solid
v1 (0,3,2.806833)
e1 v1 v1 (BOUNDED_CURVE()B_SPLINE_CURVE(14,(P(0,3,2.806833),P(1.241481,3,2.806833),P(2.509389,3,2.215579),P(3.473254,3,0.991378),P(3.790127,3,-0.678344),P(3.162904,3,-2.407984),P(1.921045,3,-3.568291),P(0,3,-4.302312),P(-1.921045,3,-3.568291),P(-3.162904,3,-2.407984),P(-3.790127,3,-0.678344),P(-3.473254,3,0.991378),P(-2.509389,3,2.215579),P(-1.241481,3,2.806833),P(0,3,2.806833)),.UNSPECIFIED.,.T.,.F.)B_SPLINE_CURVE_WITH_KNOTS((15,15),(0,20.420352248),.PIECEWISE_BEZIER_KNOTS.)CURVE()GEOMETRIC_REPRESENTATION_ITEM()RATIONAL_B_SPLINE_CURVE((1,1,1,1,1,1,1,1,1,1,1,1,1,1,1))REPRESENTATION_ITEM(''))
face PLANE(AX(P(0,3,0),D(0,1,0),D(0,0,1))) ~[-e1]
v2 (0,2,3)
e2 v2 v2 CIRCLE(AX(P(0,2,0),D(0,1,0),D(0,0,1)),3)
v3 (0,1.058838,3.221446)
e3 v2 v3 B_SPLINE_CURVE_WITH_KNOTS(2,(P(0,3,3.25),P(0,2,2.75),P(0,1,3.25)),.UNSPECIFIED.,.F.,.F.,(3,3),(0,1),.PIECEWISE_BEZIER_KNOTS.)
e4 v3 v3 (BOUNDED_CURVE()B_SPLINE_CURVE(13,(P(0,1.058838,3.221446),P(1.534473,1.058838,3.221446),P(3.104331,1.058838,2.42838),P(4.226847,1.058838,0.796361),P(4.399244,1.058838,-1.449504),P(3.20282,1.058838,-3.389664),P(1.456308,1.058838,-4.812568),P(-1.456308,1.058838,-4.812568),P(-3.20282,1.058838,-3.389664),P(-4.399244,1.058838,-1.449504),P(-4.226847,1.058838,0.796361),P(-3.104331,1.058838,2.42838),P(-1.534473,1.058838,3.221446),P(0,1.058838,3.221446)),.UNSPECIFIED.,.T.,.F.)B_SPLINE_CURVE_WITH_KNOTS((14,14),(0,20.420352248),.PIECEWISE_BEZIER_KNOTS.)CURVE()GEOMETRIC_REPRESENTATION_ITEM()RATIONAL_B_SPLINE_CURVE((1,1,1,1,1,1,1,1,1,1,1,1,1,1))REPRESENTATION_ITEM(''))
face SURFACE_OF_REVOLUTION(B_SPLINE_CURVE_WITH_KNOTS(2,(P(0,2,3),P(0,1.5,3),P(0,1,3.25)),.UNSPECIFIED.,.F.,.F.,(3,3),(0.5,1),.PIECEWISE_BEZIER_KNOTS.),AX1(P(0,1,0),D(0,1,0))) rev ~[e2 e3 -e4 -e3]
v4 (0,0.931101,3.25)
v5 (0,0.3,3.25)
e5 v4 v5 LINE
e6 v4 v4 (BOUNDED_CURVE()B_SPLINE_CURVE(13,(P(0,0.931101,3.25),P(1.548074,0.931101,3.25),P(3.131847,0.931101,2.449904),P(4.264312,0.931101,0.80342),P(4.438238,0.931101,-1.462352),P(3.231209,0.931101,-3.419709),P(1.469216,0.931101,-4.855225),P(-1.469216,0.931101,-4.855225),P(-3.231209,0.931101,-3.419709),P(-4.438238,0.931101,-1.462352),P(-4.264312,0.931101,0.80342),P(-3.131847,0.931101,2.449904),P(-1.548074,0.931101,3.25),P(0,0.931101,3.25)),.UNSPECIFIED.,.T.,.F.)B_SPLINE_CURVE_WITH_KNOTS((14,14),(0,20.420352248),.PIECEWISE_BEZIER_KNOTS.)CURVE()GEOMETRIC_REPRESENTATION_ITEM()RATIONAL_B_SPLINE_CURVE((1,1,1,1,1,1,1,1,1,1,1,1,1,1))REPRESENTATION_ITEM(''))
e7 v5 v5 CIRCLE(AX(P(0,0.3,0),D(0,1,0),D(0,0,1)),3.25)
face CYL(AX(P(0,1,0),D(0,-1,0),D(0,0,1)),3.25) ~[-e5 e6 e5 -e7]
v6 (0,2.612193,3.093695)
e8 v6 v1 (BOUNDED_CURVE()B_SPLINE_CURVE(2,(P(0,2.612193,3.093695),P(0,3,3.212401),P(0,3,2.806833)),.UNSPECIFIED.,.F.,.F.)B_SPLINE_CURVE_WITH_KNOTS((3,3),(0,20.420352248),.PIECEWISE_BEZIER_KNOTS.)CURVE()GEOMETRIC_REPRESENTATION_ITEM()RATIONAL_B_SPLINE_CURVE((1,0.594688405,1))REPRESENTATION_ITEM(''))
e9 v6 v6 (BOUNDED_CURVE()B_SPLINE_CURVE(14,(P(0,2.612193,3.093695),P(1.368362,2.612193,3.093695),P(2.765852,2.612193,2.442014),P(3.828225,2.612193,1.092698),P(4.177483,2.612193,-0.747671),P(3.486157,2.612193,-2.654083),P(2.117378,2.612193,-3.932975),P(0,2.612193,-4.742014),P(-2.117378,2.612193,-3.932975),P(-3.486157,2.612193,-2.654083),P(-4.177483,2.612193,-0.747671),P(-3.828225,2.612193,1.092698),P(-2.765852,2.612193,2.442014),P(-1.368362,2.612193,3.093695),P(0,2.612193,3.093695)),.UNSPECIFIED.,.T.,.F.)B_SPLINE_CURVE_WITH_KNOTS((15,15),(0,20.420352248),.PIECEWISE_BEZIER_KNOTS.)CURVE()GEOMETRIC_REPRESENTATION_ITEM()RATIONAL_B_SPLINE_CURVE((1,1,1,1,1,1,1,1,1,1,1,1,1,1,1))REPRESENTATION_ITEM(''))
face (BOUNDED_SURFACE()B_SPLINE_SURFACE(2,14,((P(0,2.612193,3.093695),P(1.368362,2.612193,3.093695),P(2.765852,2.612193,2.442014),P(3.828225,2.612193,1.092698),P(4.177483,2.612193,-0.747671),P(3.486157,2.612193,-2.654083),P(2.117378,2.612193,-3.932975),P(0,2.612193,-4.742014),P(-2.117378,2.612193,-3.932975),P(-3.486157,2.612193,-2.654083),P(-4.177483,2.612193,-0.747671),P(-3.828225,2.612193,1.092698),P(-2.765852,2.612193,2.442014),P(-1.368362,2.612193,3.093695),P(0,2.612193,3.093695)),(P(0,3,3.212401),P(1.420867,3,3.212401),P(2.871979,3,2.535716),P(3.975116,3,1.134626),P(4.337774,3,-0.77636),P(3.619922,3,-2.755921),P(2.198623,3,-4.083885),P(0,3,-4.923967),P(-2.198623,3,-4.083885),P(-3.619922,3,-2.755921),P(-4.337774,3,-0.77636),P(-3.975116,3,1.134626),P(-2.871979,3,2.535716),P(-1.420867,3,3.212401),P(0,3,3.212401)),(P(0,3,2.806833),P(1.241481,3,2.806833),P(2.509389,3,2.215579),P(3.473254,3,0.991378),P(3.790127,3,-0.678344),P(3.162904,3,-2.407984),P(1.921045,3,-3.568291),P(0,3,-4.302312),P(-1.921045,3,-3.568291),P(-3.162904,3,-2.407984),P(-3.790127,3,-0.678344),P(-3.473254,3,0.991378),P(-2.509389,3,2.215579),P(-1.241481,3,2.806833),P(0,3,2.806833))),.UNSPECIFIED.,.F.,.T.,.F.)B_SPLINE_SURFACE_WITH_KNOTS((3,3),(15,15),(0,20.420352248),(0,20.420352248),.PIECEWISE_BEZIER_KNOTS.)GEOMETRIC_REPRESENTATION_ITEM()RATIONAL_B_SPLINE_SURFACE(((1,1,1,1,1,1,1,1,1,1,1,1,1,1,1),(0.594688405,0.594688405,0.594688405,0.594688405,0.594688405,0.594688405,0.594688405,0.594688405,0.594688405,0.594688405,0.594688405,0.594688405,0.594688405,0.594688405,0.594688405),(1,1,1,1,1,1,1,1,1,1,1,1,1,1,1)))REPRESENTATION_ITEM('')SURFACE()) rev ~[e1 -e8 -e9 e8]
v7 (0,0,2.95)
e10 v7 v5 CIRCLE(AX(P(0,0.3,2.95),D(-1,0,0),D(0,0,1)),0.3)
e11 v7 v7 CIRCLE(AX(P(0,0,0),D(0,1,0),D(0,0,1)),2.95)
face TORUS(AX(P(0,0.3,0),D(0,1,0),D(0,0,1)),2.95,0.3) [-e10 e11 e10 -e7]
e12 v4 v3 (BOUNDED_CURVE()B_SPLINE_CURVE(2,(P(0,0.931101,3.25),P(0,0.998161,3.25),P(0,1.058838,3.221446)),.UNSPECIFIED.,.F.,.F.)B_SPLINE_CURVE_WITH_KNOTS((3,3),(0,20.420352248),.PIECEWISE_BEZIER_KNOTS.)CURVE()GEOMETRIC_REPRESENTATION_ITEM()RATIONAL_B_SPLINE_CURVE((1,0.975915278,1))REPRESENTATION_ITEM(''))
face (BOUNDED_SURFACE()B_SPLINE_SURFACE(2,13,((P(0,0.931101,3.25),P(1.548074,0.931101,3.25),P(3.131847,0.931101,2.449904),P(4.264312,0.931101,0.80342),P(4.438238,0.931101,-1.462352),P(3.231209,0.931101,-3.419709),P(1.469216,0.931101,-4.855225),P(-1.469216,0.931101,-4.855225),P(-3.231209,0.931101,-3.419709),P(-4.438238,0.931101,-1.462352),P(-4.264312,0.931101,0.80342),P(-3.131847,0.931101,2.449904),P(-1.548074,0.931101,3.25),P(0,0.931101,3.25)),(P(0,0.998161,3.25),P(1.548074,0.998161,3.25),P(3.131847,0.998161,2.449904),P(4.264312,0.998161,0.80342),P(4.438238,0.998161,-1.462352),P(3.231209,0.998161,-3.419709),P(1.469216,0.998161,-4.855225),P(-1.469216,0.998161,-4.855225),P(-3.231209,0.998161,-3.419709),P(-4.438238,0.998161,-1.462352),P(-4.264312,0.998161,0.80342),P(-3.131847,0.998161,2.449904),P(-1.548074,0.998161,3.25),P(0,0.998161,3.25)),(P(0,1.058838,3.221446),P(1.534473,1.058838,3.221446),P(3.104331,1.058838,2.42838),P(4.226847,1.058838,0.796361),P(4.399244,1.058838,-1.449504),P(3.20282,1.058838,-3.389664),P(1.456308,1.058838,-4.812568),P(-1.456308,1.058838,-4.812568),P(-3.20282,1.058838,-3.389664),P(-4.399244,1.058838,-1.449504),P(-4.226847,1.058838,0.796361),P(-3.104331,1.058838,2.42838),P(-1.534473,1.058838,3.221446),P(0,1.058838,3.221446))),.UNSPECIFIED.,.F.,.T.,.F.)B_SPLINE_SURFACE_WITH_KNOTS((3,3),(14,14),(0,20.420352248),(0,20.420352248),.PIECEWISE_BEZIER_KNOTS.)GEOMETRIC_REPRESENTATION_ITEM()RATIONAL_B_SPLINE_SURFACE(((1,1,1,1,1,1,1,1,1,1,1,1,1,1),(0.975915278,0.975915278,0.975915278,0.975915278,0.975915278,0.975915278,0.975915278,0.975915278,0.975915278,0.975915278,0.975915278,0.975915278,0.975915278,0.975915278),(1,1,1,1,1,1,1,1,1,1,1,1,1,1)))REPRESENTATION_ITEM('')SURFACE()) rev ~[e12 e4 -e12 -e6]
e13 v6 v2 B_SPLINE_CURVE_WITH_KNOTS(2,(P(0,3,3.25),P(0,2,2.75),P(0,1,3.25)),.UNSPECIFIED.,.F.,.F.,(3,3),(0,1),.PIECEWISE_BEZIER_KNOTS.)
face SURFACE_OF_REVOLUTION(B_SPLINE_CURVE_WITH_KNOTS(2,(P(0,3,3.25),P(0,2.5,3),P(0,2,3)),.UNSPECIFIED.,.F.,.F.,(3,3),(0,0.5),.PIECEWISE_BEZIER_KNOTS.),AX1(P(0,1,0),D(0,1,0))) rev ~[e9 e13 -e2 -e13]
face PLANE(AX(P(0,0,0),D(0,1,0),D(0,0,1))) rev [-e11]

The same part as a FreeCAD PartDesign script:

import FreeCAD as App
import Part
import Sketcher
from FreeCAD import Vector


def edges_at(feature, points):
    """Names of the edges that pass closest to the given points."""
    edges = feature.Shape.Edges
    near = lambda p: min(range(len(edges)), key=lambda i: edges[i].distToShape(Part.Vertex(*p))[0])
    return sorted({f"Edge{near(p) + 1}" for p in points})

doc = App.newDocument("Part")
body = doc.addObject("PartDesign::Body", "Body")

# Sketch on YZ plane
sketch1 = body.newObject("Sketcher::SketchObject", "Sketch")
sketch1.AttachmentSupport = (doc.getObject("YZ_Plane"), [""])
sketch1.MapMode = "FlatFace"
sketch1.addGeometry([
    Part.LineSegment(Vector(0, 3.25, 0), Vector(0, 0, 0)),  # 0
    Part.LineSegment(Vector(0, 0, 0), Vector(3, 0, 0)),  # 1
    Part.LineSegment(Vector(3, 0, 0), Vector(3, 3.25, 0)),  # 2
    Part.BSplineCurve([Vector(3, 3.25, 0), Vector(2.5, 3, 0), Vector(2, 3, 0)], [3, 3], [0, 0.5], False, 2, [1, 1, 1], False),  # 3
    Part.BSplineCurve([Vector(2, 3, 0), Vector(1.5, 3, 0), Vector(1, 3.25, 0)], [3, 3], [0.5, 1], False, 2, [1, 1, 1], False),  # 4
    Part.LineSegment(Vector(1, 3.25, 0), Vector(0, 3.25, 0)),  # 5
], False)
sketch1.addConstraint([
    Sketcher.Constraint("Block", 3),
    Sketcher.Constraint("Block", 4),
    Sketcher.Constraint("Coincident", 0, 2, 1, 1),
    Sketcher.Constraint("Coincident", 1, 2, 2, 1),
    Sketcher.Constraint("Coincident", 2, 2, 3, 1),
    Sketcher.Constraint("Coincident", 4, 2, 5, 1),
    Sketcher.Constraint("Coincident", 5, 2, 0, 1),
    Sketcher.Constraint("Vertical", 0),
    Sketcher.Constraint("Horizontal", 1),
    Sketcher.Constraint("Vertical", 2),
    Sketcher.Constraint("Horizontal", 5),
    Sketcher.Constraint("Coincident", 0, 2, -1, 1),
])
revolution = body.newObject("PartDesign::Revolution", "Revolution")
revolution.Profile = sketch1
revolution.ReferenceAxis = (sketch1, ["H_Axis"])
revolution.Angle = 360
doc.recompute()

fillet = body.newObject("PartDesign::Fillet", "Fillet")
fillet.Base = (revolution, edges_at(revolution, [(0, 3, -3.25), (0, 1, -3.25), (0, 0, -3.25)]))
fillet.Radius = 0.3

doc.recompute()
